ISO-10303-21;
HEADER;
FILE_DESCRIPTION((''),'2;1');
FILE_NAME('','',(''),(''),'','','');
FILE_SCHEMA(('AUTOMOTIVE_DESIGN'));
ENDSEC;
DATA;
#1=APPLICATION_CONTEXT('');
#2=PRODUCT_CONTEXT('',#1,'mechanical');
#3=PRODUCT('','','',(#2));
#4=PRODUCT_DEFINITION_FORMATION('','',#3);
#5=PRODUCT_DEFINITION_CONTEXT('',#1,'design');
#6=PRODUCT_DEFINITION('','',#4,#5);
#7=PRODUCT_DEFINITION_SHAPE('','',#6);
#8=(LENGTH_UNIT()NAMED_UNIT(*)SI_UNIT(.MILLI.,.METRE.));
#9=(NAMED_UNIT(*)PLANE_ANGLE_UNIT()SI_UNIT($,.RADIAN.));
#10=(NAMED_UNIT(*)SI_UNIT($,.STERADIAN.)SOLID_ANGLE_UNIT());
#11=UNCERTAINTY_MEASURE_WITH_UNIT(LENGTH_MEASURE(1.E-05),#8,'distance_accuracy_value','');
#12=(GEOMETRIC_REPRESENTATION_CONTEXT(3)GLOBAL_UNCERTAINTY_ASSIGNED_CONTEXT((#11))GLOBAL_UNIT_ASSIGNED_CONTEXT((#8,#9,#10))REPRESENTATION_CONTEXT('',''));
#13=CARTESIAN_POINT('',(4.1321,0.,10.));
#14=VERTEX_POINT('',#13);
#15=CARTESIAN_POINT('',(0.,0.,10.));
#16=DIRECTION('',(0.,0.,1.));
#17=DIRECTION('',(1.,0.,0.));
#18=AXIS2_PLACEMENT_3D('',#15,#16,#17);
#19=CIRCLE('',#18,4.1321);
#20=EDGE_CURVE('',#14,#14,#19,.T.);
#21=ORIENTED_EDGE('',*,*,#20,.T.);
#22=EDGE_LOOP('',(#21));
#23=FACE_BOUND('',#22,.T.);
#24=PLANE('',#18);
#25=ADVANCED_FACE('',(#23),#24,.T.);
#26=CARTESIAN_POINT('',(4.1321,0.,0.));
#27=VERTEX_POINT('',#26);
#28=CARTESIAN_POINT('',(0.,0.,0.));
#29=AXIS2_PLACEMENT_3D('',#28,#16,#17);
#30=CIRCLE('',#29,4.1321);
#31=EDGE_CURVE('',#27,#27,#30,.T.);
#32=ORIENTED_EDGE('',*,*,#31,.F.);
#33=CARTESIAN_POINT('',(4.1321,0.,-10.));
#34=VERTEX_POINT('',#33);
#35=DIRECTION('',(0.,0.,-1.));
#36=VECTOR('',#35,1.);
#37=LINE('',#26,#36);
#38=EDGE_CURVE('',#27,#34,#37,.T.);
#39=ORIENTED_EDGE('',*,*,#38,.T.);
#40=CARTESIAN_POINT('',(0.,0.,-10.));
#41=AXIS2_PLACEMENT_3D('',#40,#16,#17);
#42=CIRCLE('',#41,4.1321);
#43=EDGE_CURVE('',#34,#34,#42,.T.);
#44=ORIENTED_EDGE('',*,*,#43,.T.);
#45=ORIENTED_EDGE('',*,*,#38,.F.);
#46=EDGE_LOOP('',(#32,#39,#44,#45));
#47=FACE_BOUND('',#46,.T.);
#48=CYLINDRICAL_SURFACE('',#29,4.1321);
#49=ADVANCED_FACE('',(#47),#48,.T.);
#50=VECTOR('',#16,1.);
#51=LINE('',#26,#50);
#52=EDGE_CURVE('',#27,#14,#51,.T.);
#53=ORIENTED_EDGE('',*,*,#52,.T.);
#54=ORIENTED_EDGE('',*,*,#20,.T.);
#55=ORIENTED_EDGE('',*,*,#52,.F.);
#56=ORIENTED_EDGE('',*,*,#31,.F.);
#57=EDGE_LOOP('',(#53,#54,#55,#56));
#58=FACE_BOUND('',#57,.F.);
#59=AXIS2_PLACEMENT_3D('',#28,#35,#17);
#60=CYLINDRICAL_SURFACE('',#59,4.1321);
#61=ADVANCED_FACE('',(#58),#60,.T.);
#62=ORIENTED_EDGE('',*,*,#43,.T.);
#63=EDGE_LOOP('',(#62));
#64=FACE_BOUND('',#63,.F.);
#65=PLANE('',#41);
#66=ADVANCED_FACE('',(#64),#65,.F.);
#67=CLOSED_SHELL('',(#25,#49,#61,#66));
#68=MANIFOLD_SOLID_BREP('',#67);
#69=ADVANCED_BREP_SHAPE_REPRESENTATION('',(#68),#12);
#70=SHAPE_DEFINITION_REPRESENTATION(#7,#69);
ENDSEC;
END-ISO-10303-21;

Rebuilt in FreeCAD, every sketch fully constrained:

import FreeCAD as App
import Part
import Sketcher

V = App.Vector
Q = App.Units.Quantity

doc = App.newDocument("Part")
body = doc.addObject("PartDesign::Body", "Body")

sketch1 = body.newObject("Sketcher::SketchObject", "Sketch")
sketch1.AttachmentSupport = (doc.getObject("XY_Plane"), [""])
sketch1.MapMode = "FlatFace"
sketch1.addGeometry(Part.Circle(V(0, 0, 0), V(0, 0, 1), 4.1), False)
sketch1.addConstraint(Sketcher.Constraint("Coincident", 0, 3, -1, 1))
sketch1.addConstraint(Sketcher.Constraint("Diameter", 0, Q("8.2642 mm")))
pad1 = body.newObject("PartDesign::Pad", "Pad")
pad1.Profile = sketch1
pad1.Length = 20
pad1.Midplane = True

doc.recompute()
